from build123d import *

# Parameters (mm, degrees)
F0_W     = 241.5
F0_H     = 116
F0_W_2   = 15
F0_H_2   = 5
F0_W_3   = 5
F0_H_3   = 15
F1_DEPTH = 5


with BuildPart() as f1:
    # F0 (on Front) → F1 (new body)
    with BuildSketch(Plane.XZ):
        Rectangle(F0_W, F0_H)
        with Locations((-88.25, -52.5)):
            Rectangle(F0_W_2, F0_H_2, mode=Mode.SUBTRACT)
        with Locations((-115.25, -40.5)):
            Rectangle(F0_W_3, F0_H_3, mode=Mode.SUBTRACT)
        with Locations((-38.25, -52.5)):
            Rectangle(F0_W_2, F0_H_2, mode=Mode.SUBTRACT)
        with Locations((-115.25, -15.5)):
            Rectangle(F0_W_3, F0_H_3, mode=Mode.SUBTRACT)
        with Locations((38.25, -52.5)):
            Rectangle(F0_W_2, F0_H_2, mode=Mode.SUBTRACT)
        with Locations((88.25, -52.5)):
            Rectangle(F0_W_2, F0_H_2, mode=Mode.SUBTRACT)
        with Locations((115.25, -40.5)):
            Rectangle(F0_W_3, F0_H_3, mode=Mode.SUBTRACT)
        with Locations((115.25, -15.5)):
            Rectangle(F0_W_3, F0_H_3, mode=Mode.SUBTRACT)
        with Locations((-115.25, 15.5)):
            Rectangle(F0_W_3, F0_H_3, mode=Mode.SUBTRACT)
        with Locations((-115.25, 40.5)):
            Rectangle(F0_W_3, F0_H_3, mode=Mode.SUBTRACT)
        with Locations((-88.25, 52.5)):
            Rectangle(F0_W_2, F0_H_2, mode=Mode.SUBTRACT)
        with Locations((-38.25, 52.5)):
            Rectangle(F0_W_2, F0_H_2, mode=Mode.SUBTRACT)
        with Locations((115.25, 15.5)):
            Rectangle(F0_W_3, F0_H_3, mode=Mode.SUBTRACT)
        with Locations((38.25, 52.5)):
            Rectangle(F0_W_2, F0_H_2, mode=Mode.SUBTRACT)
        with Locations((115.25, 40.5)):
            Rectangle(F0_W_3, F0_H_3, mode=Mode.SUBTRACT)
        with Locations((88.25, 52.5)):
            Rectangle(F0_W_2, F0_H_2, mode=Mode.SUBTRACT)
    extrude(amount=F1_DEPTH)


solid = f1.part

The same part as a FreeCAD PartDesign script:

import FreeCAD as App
import Part
import Sketcher

V = App.Vector

doc = App.newDocument("Part")
body = doc.addObject("PartDesign::Body", "Body")

# Sketch on XZ plane
sketch1 = body.newObject("Sketcher::SketchObject", "Sketch")
sketch1.AttachmentSupport = (doc.getObject("XZ_Plane"), [""])
sketch1.MapMode = "FlatFace"
sketch1.addGeometry(Part.LineSegment(V(-121, 58, 0), V(-121, -58, 0)), False)
sketch1.addGeometry(Part.LineSegment(V(-121, -58, 0), V(121, -58, 0)), False)
sketch1.addGeometry(Part.LineSegment(V(121, -58, 0), V(121, 58, 0)), False)
sketch1.addGeometry(Part.LineSegment(V(121, 58, 0), V(-121, 58, 0)), False)
sketch1.addGeometry(Part.LineSegment(V(-81, -55, 0), V(-96, -55, 0)), False)
sketch1.addGeometry(Part.LineSegment(V(-96, -55, 0), V(-96, -50, 0)), False)
sketch1.addGeometry(Part.LineSegment(V(-96, -50, 0), V(-81, -50, 0)), False)
sketch1.addGeometry(Part.LineSegment(V(-81, -50, 0), V(-81, -55, 0)), False)
sketch1.addGeometry(Part.LineSegment(V(-113, -48, 0), V(-118, -48, 0)), False)
sketch1.addGeometry(Part.LineSegment(V(-118, -48, 0), V(-118, -33, 0)), False)
sketch1.addGeometry(Part.LineSegment(V(-118, -33, 0), V(-113, -33, 0)), False)
sketch1.addGeometry(Part.LineSegment(V(-113, -33, 0), V(-113, -48, 0)), False)
sketch1.addGeometry(Part.LineSegment(V(-31, -55, 0), V(-46, -55, 0)), False)
sketch1.addGeometry(Part.LineSegment(V(-46, -55, 0), V(-46, -50, 0)), False)
sketch1.addGeometry(Part.LineSegment(V(-46, -50, 0), V(-31, -50, 0)), False)
sketch1.addGeometry(Part.LineSegment(V(-31, -50, 0), V(-31, -55, 0)), False)
sketch1.addGeometry(Part.LineSegment(V(-113, -23, 0), V(-118, -23, 0)), False)
sketch1.addGeometry(Part.LineSegment(V(-118, -23, 0), V(-118, -8, 0)), False)
sketch1.addGeometry(Part.LineSegment(V(-118, -8, 0), V(-113, -8, 0)), False)
sketch1.addGeometry(Part.LineSegment(V(-113, -8, 0), V(-113, -23, 0)), False)
sketch1.addGeometry(Part.LineSegment(V(46, -55, 0), V(31, -55, 0)), False)
sketch1.addGeometry(Part.LineSegment(V(31, -55, 0), V(31, -50, 0)), False)
sketch1.addGeometry(Part.LineSegment(V(31, -50, 0), V(46, -50, 0)), False)
sketch1.addGeometry(Part.LineSegment(V(46, -50, 0), V(46, -55, 0)), False)
sketch1.addGeometry(Part.LineSegment(V(96, -55, 0), V(81, -55, 0)), False)
sketch1.addGeometry(Part.LineSegment(V(81, -55, 0), V(81, -50, 0)), False)
sketch1.addGeometry(Part.LineSegment(V(81, -50, 0), V(96, -50, 0)), False)
sketch1.addGeometry(Part.LineSegment(V(96, -50, 0), V(96, -55, 0)), False)
sketch1.addGeometry(Part.LineSegment(V(118, -48, 0), V(113, -48, 0)), False)
sketch1.addGeometry(Part.LineSegment(V(113, -48, 0), V(113, -33, 0)), False)
sketch1.addGeometry(Part.LineSegment(V(113, -33, 0), V(118, -33, 0)), False)
sketch1.addGeometry(Part.LineSegment(V(118, -33, 0), V(118, -48, 0)), False)
sketch1.addGeometry(Part.LineSegment(V(118, -23, 0), V(113, -23, 0)), False)
sketch1.addGeometry(Part.LineSegment(V(113, -23, 0), V(113, -8, 0)), False)
sketch1.addGeometry(Part.LineSegment(V(113, -8, 0), V(118, -8, 0)), False)
sketch1.addGeometry(Part.LineSegment(V(118, -8, 0), V(118, -23, 0)), False)
sketch1.addGeometry(Part.LineSegment(V(-113, 8, 0), V(-118, 8, 0)), False)
sketch1.addGeometry(Part.LineSegment(V(-118, 8, 0), V(-118, 23, 0)), False)
sketch1.addGeometry(Part.LineSegment(V(-118, 23, 0), V(-113, 23, 0)), False)
sketch1.addGeometry(Part.LineSegment(V(-113, 23, 0), V(-113, 8, 0)), False)
sketch1.addGeometry(Part.LineSegment(V(-113, 33, 0), V(-118, 33, 0)), False)
sketch1.addGeometry(Part.LineSegment(V(-118, 33, 0), V(-118, 48, 0)), False)
sketch1.addGeometry(Part.LineSegment(V(-118, 48, 0), V(-113, 48, 0)), False)
sketch1.addGeometry(Part.LineSegment(V(-113, 48, 0), V(-113, 33, 0)), False)
sketch1.addGeometry(Part.LineSegment(V(-81, 50, 0), V(-96, 50, 0)), False)
sketch1.addGeometry(Part.LineSegment(V(-96, 50, 0), V(-96, 55, 0)), False)
sketch1.addGeometry(Part.LineSegment(V(-96, 55, 0), V(-81, 55, 0)), False)
sketch1.addGeometry(Part.LineSegment(V(-81, 55, 0), V(-81, 50, 0)), False)
sketch1.addGeometry(Part.LineSegment(V(-31, 50, 0), V(-46, 50, 0)), False)
sketch1.addGeometry(Part.LineSegment(V(-46, 50, 0), V(-46, 55, 0)), False)
sketch1.addGeometry(Part.LineSegment(V(-46, 55, 0), V(-31, 55, 0)), False)
sketch1.addGeometry(Part.LineSegment(V(-31, 55, 0), V(-31, 50, 0)), False)
sketch1.addGeometry(Part.LineSegment(V(118, 8, 0), V(113, 8, 0)), False)
sketch1.addGeometry(Part.LineSegment(V(113, 8, 0), V(113, 23, 0)), False)
sketch1.addGeometry(Part.LineSegment(V(113, 23, 0), V(118, 23, 0)), False)
sketch1.addGeometry(Part.LineSegment(V(118, 23, 0), V(118, 8, 0)), False)
sketch1.addGeometry(Part.LineSegment(V(46, 50, 0), V(31, 50, 0)), False)
sketch1.addGeometry(Part.LineSegment(V(31, 50, 0), V(31, 55, 0)), False)
sketch1.addGeometry(Part.LineSegment(V(31, 55, 0), V(46, 55, 0)), False)
sketch1.addGeometry(Part.LineSegment(V(46, 55, 0), V(46, 50, 0)), False)
sketch1.addGeometry(Part.LineSegment(V(118, 33, 0), V(113, 33, 0)), False)
sketch1.addGeometry(Part.LineSegment(V(113, 33, 0), V(113, 48, 0)), False)
sketch1.addGeometry(Part.LineSegment(V(113, 48, 0), V(118, 48, 0)), False)
sketch1.addGeometry(Part.LineSegment(V(118, 48, 0), V(118, 33, 0)), False)
sketch1.addGeometry(Part.LineSegment(V(96, 50, 0), V(81, 50, 0)), False)
sketch1.addGeometry(Part.LineSegment(V(81, 50, 0), V(81, 55, 0)), False)
sketch1.addGeometry(Part.LineSegment(V(81, 55, 0), V(96, 55, 0)), False)
sketch1.addGeometry(Part.LineSegment(V(96, 55, 0), V(96, 50, 0)), False)
sketch1.addConstraint(Sketcher.Constraint("Coincident", 0, 2, 1, 1))
sketch1.addConstraint(Sketcher.Constraint("Coincident", 1, 2, 2, 1))
sketch1.addConstraint(Sketcher.Constraint("Coincident", 2, 2, 3, 1))
sketch1.addConstraint(Sketcher.Constraint("Coincident", 3, 2, 0, 1))
sketch1.addConstraint(Sketcher.Constraint("Coincident", 4, 2, 5, 1))
sketch1.addConstraint(Sketcher.Constraint("Coincident", 5, 2, 6, 1))
sketch1.addConstraint(Sketcher.Constraint("Coincident", 6, 2, 7, 1))
sketch1.addConstraint(Sketcher.Constraint("Coincident", 7, 2, 4, 1))
sketch1.addConstraint(Sketcher.Constraint("Coincident", 8, 2, 9, 1))
sketch1.addConstraint(Sketcher.Constraint("Coincident", 9, 2, 10, 1))
sketch1.addConstraint(Sketcher.Constraint("Coincident", 10, 2, 11, 1))
sketch1.addConstraint(Sketcher.Constraint("Coincident", 11, 2, 8, 1))
sketch1.addConstraint(Sketcher.Constraint("Coincident", 12, 2, 13, 1))
sketch1.addConstraint(Sketcher.Constraint("Coincident", 13, 2, 14, 1))
sketch1.addConstraint(Sketcher.Constraint("Coincident", 14, 2, 15, 1))
sketch1.addConstraint(Sketcher.Constraint("Coincident", 15, 2, 12, 1))
sketch1.addConstraint(Sketcher.Constraint("Coincident", 16, 2, 17, 1))
sketch1.addConstraint(Sketcher.Constraint("Coincident", 17, 2, 18, 1))
sketch1.addConstraint(Sketcher.Constraint("Coincident", 18, 2, 19, 1))
sketch1.addConstraint(Sketcher.Constraint("Coincident", 19, 2, 16, 1))
sketch1.addConstraint(Sketcher.Constraint("Coincident", 20, 2, 21, 1))
sketch1.addConstraint(Sketcher.Constraint("Coincident", 21, 2, 22, 1))
sketch1.addConstraint(Sketcher.Constraint("Coincident", 22, 2, 23, 1))
sketch1.addConstraint(Sketcher.Constraint("Coincident", 23, 2, 20, 1))
sketch1.addConstraint(Sketcher.Constraint("Coincident", 24, 2, 25, 1))
sketch1.addConstraint(Sketcher.Constraint("Coincident", 25, 2, 26, 1))
sketch1.addConstraint(Sketcher.Constraint("Coincident", 26, 2, 27, 1))
sketch1.addConstraint(Sketcher.Constraint("Coincident", 27, 2, 24, 1))
sketch1.addConstraint(Sketcher.Constraint("Coincident", 28, 2, 29, 1))
sketch1.addConstraint(Sketcher.Constraint("Coincident", 29, 2, 30, 1))
sketch1.addConstraint(Sketcher.Constraint("Coincident", 30, 2, 31, 1))
sketch1.addConstraint(Sketcher.Constraint("Coincident", 31, 2, 28, 1))
sketch1.addConstraint(Sketcher.Constraint("Coincident", 32, 2, 33, 1))
sketch1.addConstraint(Sketcher.Constraint("Coincident", 33, 2, 34, 1))
sketch1.addConstraint(Sketcher.Constraint("Coincident", 34, 2, 35, 1))
sketch1.addConstraint(Sketcher.Constraint("Coincident", 35, 2, 32, 1))
sketch1.addConstraint(Sketcher.Constraint("Coincident", 36, 2, 37, 1))
sketch1.addConstraint(Sketcher.Constraint("Coincident", 37, 2, 38, 1))
sketch1.addConstraint(Sketcher.Constraint("Coincident", 38, 2, 39, 1))
sketch1.addConstraint(Sketcher.Constraint("Coincident", 39, 2, 36, 1))
sketch1.addConstraint(Sketcher.Constraint("Coincident", 40, 2, 41, 1))
sketch1.addConstraint(Sketcher.Constraint("Coincident", 41, 2, 42, 1))
sketch1.addConstraint(Sketcher.Constraint("Coincident", 42, 2, 43, 1))
sketch1.addConstraint(Sketcher.Constraint("Coincident", 43, 2, 40, 1))
sketch1.addConstraint(Sketcher.Constraint("Coincident", 44, 2, 45, 1))
sketch1.addConstraint(Sketcher.Constraint("Coincident", 45, 2, 46, 1))
sketch1.addConstraint(Sketcher.Constraint("Coincident", 46, 2, 47, 1))
sketch1.addConstraint(Sketcher.Constraint("Coincident", 47, 2, 44, 1))
sketch1.addConstraint(Sketcher.Constraint("Coincident", 48, 2, 49, 1))
sketch1.addConstraint(Sketcher.Constraint("Coincident", 49, 2, 50, 1))
sketch1.addConstraint(Sketcher.Constraint("Coincident", 50, 2, 51, 1))
sketch1.addConstraint(Sketcher.Constraint("Coincident", 51, 2, 48, 1))
sketch1.addConstraint(Sketcher.Constraint("Coincident", 52, 2, 53, 1))
sketch1.addConstraint(Sketcher.Constraint("Coincident", 53, 2, 54, 1))
sketch1.addConstraint(Sketcher.Constraint("Coincident", 54, 2, 55, 1))
sketch1.addConstraint(Sketcher.Constraint("Coincident", 55, 2, 52, 1))
sketch1.addConstraint(Sketcher.Constraint("Coincident", 56, 2, 57, 1))
sketch1.addConstraint(Sketcher.Constraint("Coincident", 57, 2, 58, 1))
sketch1.addConstraint(Sketcher.Constraint("Coincident", 58, 2, 59, 1))
sketch1.addConstraint(Sketcher.Constraint("Coincident", 59, 2, 56, 1))
sketch1.addConstraint(Sketcher.Constraint("Coincident", 60, 2, 61, 1))
sketch1.addConstraint(Sketcher.Constraint("Coincident", 61, 2, 62, 1))
sketch1.addConstraint(Sketcher.Constraint("Coincident", 62, 2, 63, 1))
sketch1.addConstraint(Sketcher.Constraint("Coincident", 63, 2, 60, 1))
sketch1.addConstraint(Sketcher.Constraint("Coincident", 64, 2, 65, 1))
sketch1.addConstraint(Sketcher.Constraint("Coincident", 65, 2, 66, 1))
sketch1.addConstraint(Sketcher.Constraint("Coincident", 66, 2, 67, 1))
sketch1.addConstraint(Sketcher.Constraint("Coincident", 67, 2, 64, 1))
sketch1.addConstraint(Sketcher.Constraint("Vertical", 0))
sketch1.addConstraint(Sketcher.Constraint("Horizontal", 1))
sketch1.addConstraint(Sketcher.Constraint("Vertical", 2))
sketch1.addConstraint(Sketcher.Constraint("Horizontal", 3))
sketch1.addConstraint(Sketcher.Constraint("Horizontal", 4))
sketch1.addConstraint(Sketcher.Constraint("Vertical", 5))
sketch1.addConstraint(Sketcher.Constraint("Horizontal", 6))
sketch1.addConstraint(Sketcher.Constraint("Vertical", 7))
sketch1.addConstraint(Sketcher.Constraint("Horizontal", 8))
sketch1.addConstraint(Sketcher.Constraint("Vertical", 9))
sketch1.addConstraint(Sketcher.Constraint("Horizontal", 10))
sketch1.addConstraint(Sketcher.Constraint("Vertical", 11))
sketch1.addConstraint(Sketcher.Constraint("Horizontal", 12))
sketch1.addConstraint(Sketcher.Constraint("Vertical", 13))
sketch1.addConstraint(Sketcher.Constraint("Horizontal", 14))
sketch1.addConstraint(Sketcher.Constraint("Vertical", 15))
sketch1.addConstraint(Sketcher.Constraint("Horizontal", 16))
sketch1.addConstraint(Sketcher.Constraint("Vertical", 17))
sketch1.addConstraint(Sketcher.Constraint("Horizontal", 18))
sketch1.addConstraint(Sketcher.Constraint("Vertical", 19))
sketch1.addConstraint(Sketcher.Constraint("Horizontal", 20))
sketch1.addConstraint(Sketcher.Constraint("Vertical", 21))
sketch1.addConstraint(Sketcher.Constraint("Horizontal", 22))
sketch1.addConstraint(Sketcher.Constraint("Vertical", 23))
sketch1.addConstraint(Sketcher.Constraint("Horizontal", 24))
sketch1.addConstraint(Sketcher.Constraint("Vertical", 25))
sketch1.addConstraint(Sketcher.Constraint("Horizontal", 26))
sketch1.addConstraint(Sketcher.Constraint("Vertical", 27))
sketch1.addConstraint(Sketcher.Constraint("Horizontal", 28))
sketch1.addConstraint(Sketcher.Constraint("Vertical", 29))
sketch1.addConstraint(Sketcher.Constraint("Horizontal", 30))
sketch1.addConstraint(Sketcher.Constraint("Vertical", 31))
sketch1.addConstraint(Sketcher.Constraint("Horizontal", 32))
sketch1.addConstraint(Sketcher.Constraint("Vertical", 33))
sketch1.addConstraint(Sketcher.Constraint("Horizontal", 34))
sketch1.addConstraint(Sketcher.Constraint("Vertical", 35))
sketch1.addConstraint(Sketcher.Constraint("Horizontal", 36))
sketch1.addConstraint(Sketcher.Constraint("Vertical", 37))
sketch1.addConstraint(Sketcher.Constraint("Horizontal", 38))
sketch1.addConstraint(Sketcher.Constraint("Vertical", 39))
sketch1.addConstraint(Sketcher.Constraint("Horizontal", 40))
sketch1.addConstraint(Sketcher.Constraint("Vertical", 41))
sketch1.addConstraint(Sketcher.Constraint("Horizontal", 42))
sketch1.addConstraint(Sketcher.Constraint("Vertical", 43))
sketch1.addConstraint(Sketcher.Constraint("Horizontal", 44))
sketch1.addConstraint(Sketcher.Constraint("Vertical", 45))
sketch1.addConstraint(Sketcher.Constraint("Horizontal", 46))
sketch1.addConstraint(Sketcher.Constraint("Vertical", 47))
sketch1.addConstraint(Sketcher.Constraint("Horizontal", 48))
sketch1.addConstraint(Sketcher.Constraint("Vertical", 49))
sketch1.addConstraint(Sketcher.Constraint("Horizontal", 50))
sketch1.addConstraint(Sketcher.Constraint("Vertical", 51))
sketch1.addConstraint(Sketcher.Constraint("Horizontal", 52))
sketch1.addConstraint(Sketcher.Constraint("Vertical", 53))
sketch1.addConstraint(Sketcher.Constraint("Horizontal", 54))
sketch1.addConstraint(Sketcher.Constraint("Vertical", 55))
sketch1.addConstraint(Sketcher.Constraint("Horizontal", 56))
sketch1.addConstraint(Sketcher.Constraint("Vertical", 57))
sketch1.addConstraint(Sketcher.Constraint("Horizontal", 58))
sketch1.addConstraint(Sketcher.Constraint("Vertical", 59))
sketch1.addConstraint(Sketcher.Constraint("Horizontal", 60))
sketch1.addConstraint(Sketcher.Constraint("Vertical", 61))
sketch1.addConstraint(Sketcher.Constraint("Horizontal", 62))
sketch1.addConstraint(Sketcher.Constraint("Vertical", 63))
sketch1.addConstraint(Sketcher.Constraint("Horizontal", 64))
sketch1.addConstraint(Sketcher.Constraint("Vertical", 65))
sketch1.addConstraint(Sketcher.Constraint("Horizontal", 66))
sketch1.addConstraint(Sketcher.Constraint("Vertical", 67))
sketch1.addConstraint(Sketcher.Constraint("Symmetric", 0, 2, 2, 2, -1, 1))
sketch1.addConstraint(Sketcher.Constraint("Symmetric", 34, 2, 36, 2, -1, 1))
sketch1.addConstraint(Sketcher.Constraint("Symmetric", 32, 2, 38, 2, -1, 1))
sketch1.addConstraint(Sketcher.Constraint("Symmetric", 30, 2, 40, 2, -1, 1))
sketch1.addConstraint(Sketcher.Constraint("Symmetric", 28, 2, 42, 2, -1, 1))
sketch1.addConstraint(Sketcher.Constraint("Symmetric", 26, 2, 44, 2, -1, 1))
sketch1.addConstraint(Sketcher.Constraint("Symmetric", 24, 2, 46, 2, -1, 1))
sketch1.addConstraint(Sketcher.Constraint("Symmetric", 22, 2, 48, 2, -1, 1))
sketch1.addConstraint(Sketcher.Constraint("Symmetric", 20, 2, 50, 2, -1, 1))
sketch1.addConstraint(Sketcher.Constraint("Symmetric", 18, 2, 52, 2, -1, 1))
sketch1.addConstraint(Sketcher.Constraint("Symmetric", 16, 2, 54, 2, -1, 1))
sketch1.addConstraint(Sketcher.Constraint("Symmetric", 14, 2, 56, 2, -1, 1))
sketch1.addConstraint(Sketcher.Constraint("Symmetric", 12, 2, 58, 2, -1, 1))
sketch1.addConstraint(Sketcher.Constraint("Symmetric", 10, 2, 60, 2, -1, 1))
sketch1.addConstraint(Sketcher.Constraint("Symmetric", 8, 2, 62, 2, -1, 1))
sketch1.addConstraint(Sketcher.Constraint("Symmetric", 6, 2, 64, 2, -1, 1))
sketch1.addConstraint(Sketcher.Constraint("Symmetric", 4, 2, 66, 2, -1, 1))
sketch1.addConstraint(Sketcher.Constraint("Symmetric", 15, 2, 20, 2, -2))
sketch1.addConstraint(Sketcher.Constraint("Symmetric", 13, 2, 22, 2, -2))
sketch1.addConstraint(Sketcher.Constraint("Symmetric", 7, 2, 24, 2, -2))
sketch1.addConstraint(Sketcher.Constraint("Symmetric", 5, 2, 26, 2, -2))
sketch1.addConstraint(Sketcher.Constraint("Symmetric", 11, 2, 28, 2, -2))
sketch1.addConstraint(Sketcher.Constraint("Symmetric", 9, 2, 30, 2, -2))
sketch1.addConstraint(Sketcher.Constraint("Symmetric", 19, 2, 32, 2, -2))
sketch1.addConstraint(Sketcher.Constraint("Symmetric", 17, 2, 34, 2, -2))
sketch1.addConstraint(Sketcher.Constraint("Horizontal", 7, 2, 12, 2))
sketch1.addConstraint(Sketcher.Constraint("Horizontal", 6, 2, 13, 2))
sketch1.addConstraint(Sketcher.Constraint("Vertical", 9, 2, 16, 2))
sketch1.addConstraint(Sketcher.Constraint("Vertical", 11, 2, 18, 2))
sketch1.addConstraint(Sketcher.Constraint("Equal", 6, 12))
sketch1.addConstraint(Sketcher.Constraint("Equal", 62, 5))
sketch1.addConstraint(Sketcher.Constraint("Equal", 66, 9))
sketch1.addConstraint(Sketcher.Constraint("Equal", 11, 17))
sketch1.addConstraint(Sketcher.Constraint("DistanceX", 4, 2, 4, 1, 15.0))
sketch1.addConstraint(Sketcher.Constraint("DistanceX", 8, 2, 8, 1, 5.0))
sketch1.addConstraint(Sketcher.Constraint("DistanceY", 0, 2, 0, 1, 116.0))
sketch1.addConstraint(Sketcher.Constraint("DistanceX", 1, 1, 1, 2, 241.5))
sketch1.addConstraint(Sketcher.Constraint("DistanceY", 4, 2, -1, 1, 55.0))
sketch1.addConstraint(Sketcher.Constraint("DistanceY", 8, 2, -1, 1, 48.0))
sketch1.addConstraint(Sketcher.Constraint("DistanceY", 16, 2, -1, 1, 23.0))
sketch1.addConstraint(Sketcher.Constraint("DistanceX", 4, 2, -1, 1, 95.75))
sketch1.addConstraint(Sketcher.Constraint("DistanceX", 8, 2, -1, 1, 117.75))
sketch1.addConstraint(Sketcher.Constraint("DistanceX", 12, 2, -1, 1, 45.75))
pad1 = body.newObject("PartDesign::Pad", "Pad")
pad1.Profile = sketch1
pad1.Length = 5

doc.recompute()
